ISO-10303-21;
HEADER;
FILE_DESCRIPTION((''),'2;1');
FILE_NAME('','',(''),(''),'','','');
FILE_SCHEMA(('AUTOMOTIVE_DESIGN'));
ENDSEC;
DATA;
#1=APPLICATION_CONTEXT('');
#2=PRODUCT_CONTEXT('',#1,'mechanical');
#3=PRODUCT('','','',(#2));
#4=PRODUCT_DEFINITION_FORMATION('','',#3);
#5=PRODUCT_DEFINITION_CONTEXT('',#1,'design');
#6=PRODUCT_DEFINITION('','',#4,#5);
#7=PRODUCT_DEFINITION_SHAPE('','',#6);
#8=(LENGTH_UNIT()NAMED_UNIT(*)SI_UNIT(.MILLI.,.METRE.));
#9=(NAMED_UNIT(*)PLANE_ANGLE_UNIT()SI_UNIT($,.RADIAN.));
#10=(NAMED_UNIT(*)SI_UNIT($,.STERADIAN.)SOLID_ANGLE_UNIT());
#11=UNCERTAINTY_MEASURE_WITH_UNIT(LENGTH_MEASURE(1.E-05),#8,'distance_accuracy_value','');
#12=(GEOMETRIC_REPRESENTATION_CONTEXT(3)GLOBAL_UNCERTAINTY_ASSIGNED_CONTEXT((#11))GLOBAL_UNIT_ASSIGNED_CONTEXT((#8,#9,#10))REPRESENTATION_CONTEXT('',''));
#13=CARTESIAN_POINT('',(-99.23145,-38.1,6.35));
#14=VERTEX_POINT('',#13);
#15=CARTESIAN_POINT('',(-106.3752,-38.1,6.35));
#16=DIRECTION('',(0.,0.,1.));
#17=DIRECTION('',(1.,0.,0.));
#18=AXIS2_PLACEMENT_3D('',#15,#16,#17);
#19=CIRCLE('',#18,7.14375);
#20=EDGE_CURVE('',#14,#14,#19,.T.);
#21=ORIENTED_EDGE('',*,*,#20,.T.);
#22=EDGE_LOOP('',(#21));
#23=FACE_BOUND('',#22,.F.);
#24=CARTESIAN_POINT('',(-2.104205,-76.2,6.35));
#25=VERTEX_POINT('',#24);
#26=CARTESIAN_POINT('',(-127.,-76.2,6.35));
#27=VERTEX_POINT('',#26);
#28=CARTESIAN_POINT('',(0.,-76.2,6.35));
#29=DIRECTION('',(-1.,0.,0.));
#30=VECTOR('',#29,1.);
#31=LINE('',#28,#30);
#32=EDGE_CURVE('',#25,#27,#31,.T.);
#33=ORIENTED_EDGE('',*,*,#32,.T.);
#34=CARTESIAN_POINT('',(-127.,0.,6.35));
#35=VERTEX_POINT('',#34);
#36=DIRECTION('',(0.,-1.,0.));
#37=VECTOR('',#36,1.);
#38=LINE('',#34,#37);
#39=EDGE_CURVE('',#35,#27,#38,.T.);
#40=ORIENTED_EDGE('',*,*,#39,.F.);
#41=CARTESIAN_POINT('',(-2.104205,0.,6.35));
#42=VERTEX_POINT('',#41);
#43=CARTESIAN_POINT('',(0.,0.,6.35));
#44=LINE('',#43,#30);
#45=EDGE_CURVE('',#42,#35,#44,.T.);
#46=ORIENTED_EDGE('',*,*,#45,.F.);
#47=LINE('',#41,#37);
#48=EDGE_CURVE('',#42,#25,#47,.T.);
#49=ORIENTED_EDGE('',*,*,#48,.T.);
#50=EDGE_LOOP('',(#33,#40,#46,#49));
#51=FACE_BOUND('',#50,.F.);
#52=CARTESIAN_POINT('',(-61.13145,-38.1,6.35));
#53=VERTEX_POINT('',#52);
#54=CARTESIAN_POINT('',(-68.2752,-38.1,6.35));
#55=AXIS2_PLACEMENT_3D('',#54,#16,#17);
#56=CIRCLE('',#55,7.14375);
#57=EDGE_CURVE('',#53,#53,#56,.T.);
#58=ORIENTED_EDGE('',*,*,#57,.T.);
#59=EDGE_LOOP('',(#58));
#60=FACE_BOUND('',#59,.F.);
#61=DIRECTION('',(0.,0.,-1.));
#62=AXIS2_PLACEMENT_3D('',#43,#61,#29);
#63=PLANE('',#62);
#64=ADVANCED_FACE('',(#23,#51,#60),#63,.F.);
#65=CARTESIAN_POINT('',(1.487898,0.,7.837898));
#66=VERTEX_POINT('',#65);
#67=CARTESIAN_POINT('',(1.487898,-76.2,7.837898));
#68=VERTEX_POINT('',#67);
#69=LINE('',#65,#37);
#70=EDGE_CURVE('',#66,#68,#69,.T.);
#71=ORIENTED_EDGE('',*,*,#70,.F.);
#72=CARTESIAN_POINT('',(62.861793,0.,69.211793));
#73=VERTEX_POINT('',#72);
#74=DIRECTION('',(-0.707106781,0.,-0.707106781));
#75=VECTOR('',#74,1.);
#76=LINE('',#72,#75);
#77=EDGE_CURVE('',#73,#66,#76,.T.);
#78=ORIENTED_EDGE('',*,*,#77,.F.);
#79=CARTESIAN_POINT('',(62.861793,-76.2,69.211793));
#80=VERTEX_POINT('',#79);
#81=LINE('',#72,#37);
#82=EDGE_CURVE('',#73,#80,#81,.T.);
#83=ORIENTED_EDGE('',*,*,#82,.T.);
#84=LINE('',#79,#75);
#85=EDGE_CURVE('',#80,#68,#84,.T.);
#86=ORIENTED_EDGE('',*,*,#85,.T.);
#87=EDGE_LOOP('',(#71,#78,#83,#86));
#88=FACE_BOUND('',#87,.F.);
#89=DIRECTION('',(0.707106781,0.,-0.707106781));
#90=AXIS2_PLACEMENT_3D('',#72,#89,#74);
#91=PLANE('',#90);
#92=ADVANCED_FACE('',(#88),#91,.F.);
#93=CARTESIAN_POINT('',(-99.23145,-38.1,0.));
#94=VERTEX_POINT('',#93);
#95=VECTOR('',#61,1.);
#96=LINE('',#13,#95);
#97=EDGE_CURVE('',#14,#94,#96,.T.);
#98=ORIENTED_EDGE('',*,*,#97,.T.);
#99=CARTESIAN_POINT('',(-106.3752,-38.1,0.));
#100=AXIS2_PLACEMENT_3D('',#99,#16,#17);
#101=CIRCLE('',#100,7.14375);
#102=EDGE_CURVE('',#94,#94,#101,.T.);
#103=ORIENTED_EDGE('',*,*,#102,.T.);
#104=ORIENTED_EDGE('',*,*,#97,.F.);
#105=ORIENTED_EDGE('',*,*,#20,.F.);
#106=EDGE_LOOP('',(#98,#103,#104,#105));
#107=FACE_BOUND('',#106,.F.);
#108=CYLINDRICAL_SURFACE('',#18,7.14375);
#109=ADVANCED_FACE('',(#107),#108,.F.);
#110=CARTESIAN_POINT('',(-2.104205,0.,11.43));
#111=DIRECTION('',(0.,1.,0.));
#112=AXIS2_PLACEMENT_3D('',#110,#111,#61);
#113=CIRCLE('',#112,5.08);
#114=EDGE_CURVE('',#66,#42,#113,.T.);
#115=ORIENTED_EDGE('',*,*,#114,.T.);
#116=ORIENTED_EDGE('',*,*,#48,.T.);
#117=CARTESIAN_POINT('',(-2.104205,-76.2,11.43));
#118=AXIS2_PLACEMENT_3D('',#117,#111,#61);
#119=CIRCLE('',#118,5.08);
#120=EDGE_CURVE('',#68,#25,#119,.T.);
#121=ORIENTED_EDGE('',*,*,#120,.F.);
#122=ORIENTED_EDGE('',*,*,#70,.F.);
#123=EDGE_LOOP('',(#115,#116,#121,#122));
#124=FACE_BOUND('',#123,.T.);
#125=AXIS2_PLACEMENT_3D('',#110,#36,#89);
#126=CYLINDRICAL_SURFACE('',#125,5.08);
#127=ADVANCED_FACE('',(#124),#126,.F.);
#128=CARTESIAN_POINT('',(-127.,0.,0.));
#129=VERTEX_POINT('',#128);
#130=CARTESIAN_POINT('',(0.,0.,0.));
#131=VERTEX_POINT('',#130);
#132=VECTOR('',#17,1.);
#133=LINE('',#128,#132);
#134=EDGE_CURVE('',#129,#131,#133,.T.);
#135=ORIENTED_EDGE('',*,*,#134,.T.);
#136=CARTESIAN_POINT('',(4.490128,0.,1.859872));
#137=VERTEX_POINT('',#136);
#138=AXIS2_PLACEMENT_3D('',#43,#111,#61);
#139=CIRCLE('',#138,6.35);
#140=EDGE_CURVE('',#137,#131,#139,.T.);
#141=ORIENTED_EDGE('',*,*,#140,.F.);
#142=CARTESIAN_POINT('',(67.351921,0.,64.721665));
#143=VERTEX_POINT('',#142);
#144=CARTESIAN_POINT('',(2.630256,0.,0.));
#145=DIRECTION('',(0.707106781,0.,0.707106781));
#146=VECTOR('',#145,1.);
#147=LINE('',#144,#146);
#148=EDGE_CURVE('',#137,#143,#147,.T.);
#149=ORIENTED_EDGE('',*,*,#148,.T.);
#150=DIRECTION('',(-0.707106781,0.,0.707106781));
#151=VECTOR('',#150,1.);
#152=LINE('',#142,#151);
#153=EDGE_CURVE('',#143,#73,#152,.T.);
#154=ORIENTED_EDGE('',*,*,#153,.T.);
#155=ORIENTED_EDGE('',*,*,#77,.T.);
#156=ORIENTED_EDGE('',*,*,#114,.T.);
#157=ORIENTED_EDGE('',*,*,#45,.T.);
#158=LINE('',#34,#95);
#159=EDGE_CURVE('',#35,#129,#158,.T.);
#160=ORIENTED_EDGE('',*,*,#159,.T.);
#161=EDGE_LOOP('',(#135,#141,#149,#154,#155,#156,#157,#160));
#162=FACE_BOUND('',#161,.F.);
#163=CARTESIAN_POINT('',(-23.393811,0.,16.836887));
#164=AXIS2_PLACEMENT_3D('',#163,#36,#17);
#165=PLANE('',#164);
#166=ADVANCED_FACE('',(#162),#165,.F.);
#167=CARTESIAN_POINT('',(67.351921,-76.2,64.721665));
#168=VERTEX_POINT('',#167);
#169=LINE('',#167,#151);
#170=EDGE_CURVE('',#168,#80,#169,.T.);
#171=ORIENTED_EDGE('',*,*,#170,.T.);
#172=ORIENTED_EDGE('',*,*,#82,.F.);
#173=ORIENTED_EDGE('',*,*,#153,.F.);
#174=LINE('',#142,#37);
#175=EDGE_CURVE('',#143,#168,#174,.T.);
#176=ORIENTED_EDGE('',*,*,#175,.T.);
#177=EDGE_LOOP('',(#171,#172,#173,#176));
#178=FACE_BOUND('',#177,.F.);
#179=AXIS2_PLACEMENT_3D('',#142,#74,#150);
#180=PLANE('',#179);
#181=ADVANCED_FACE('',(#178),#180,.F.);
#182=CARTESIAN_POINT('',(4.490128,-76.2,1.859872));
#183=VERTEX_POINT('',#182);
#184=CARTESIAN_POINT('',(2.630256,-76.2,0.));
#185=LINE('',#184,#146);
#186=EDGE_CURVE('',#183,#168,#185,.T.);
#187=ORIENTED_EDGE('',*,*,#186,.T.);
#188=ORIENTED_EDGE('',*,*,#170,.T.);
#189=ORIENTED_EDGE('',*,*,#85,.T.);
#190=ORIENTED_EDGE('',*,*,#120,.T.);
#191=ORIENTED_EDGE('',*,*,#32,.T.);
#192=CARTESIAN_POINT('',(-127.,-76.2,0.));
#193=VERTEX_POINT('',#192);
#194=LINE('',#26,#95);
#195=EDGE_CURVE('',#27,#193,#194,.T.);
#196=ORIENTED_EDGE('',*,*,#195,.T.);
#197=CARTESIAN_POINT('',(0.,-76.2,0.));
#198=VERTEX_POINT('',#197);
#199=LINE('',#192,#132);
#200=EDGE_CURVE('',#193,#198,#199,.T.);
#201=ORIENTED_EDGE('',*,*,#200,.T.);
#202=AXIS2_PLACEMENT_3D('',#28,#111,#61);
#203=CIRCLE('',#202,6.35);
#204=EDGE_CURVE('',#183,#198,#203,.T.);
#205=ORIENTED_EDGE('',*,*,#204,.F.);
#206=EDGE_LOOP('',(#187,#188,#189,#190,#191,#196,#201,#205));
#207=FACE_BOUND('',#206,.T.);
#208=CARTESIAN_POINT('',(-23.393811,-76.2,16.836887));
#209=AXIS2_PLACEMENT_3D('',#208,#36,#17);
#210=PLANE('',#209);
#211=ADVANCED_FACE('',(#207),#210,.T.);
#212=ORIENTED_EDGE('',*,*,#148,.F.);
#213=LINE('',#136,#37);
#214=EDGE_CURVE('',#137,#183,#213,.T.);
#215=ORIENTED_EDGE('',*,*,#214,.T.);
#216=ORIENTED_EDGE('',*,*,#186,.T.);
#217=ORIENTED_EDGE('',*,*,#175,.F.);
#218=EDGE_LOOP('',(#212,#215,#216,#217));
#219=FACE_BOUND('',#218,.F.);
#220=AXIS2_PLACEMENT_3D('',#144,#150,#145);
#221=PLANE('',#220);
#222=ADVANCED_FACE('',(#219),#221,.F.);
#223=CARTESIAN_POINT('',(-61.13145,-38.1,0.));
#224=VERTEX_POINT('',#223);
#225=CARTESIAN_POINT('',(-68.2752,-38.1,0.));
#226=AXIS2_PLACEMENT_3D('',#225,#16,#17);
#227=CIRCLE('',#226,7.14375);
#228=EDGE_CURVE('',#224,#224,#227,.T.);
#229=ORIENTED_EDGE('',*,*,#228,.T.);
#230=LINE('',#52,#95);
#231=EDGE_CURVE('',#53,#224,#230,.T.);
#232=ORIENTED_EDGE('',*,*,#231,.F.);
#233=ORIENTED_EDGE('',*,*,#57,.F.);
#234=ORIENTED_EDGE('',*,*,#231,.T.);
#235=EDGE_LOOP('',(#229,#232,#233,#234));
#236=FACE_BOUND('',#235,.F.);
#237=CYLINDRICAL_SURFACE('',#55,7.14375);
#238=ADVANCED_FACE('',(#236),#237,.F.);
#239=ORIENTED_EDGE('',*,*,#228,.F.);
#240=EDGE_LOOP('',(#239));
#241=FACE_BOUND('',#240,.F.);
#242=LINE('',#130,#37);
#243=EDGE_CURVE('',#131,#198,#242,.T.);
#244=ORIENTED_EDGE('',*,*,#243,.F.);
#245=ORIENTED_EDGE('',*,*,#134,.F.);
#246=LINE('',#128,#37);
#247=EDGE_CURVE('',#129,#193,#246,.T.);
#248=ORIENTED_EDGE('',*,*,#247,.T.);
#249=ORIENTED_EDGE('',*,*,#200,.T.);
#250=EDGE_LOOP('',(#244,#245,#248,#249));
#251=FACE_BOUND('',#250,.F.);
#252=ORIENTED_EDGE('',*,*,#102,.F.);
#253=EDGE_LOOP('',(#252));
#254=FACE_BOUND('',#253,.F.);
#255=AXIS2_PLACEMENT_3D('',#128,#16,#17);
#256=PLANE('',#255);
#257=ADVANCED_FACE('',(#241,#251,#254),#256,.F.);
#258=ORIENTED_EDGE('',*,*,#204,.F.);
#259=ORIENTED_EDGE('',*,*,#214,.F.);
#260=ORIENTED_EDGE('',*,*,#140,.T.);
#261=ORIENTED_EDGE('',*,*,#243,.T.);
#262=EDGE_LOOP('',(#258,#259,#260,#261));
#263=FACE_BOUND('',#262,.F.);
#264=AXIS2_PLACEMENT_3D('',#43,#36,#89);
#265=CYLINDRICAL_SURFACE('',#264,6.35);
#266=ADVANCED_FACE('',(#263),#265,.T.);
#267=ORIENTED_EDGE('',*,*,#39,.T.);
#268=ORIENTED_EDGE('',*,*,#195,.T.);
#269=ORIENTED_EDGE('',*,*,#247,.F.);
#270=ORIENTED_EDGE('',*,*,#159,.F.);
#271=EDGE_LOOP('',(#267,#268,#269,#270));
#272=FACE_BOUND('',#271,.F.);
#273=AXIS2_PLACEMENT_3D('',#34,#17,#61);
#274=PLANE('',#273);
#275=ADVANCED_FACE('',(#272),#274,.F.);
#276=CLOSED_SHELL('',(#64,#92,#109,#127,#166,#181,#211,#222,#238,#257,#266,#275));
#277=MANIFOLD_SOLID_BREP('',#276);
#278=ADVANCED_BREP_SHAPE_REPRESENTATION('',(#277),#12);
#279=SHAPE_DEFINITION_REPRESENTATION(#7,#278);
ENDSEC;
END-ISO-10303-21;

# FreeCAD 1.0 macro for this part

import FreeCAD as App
import Part
import Sketcher
from FreeCAD import Vector
Q = App.Units.Quantity


def edges_at(feature, points):
    """Names of the edges that pass closest to the given points."""
    edges = feature.Shape.Edges
    near = lambda p: min(range(len(edges)), key=lambda i: edges[i].distToShape(Part.Vertex(*p))[0])
    return sorted({f"Edge{near(p) + 1}" for p in points})


def add_polygon(sketch, points):
    """Adds a closed chain of lines whose ends are joined by coincident constraints."""
    first, n = sketch.GeometryCount, len(points)
    for a, b in zip(points, points[1:] + points[:1]):
        sketch.addGeometry(Part.LineSegment(App.Vector(*a, 0), App.Vector(*b, 0)), False)
    for i in range(n):
        sketch.addConstraint(Sketcher.Constraint("Coincident", first + i, 2, first + (i + 1) % n, 1))

doc = App.newDocument("Part")
body = doc.addObject("PartDesign::Body", "Body")

# Sketch on XZ plane
sketch1 = body.newObject("Sketcher::SketchObject", "Sketch")
sketch1.AttachmentSupport = (doc.getObject("XZ_Plane"), [""])
sketch1.MapMode = "FlatFace"
add_polygon(sketch1, [(-127, 0), (2.630256, 0), (67.351921, 64.721665), (62.861793, 69.211793), (0, 6.35), (-127, 6.35)])  # lines 0-5
sketch1.addConstraint([
    Sketcher.Constraint("Horizontal", 0),
    Sketcher.Constraint("Horizontal", 4),
    Sketcher.Constraint("Vertical", 5),
    Sketcher.Constraint("PointOnObject", 0, 2, -1),
    Sketcher.Constraint("PointOnObject", 3, 2, -2),
    Sketcher.Constraint("Perpendicular", 1, 2),
    Sketcher.Constraint("Perpendicular", 2, 3),
    Sketcher.Constraint("DistanceX", 4, 2, 4, 1, Q("5 in")),
    Sketcher.Constraint("Angle", 1, Q("45 deg")),
    Sketcher.Constraint("Distance", 3, Q("3.5 in")),
    Sketcher.Constraint("DistanceY", 5, 2, 5, 1, Q("0.25 in")),
    Sketcher.Constraint("Distance", 2, Q("0.25 in")),
])
pad1 = body.newObject("PartDesign::Pad", "Pad")
pad1.Profile = sketch1
pad1.Length = Q("3 in")
doc.recompute()

fillet = body.newObject("PartDesign::Fillet", "Fillet")
fillet.Base = (pad1, edges_at(pad1, [(0, -38.1, 6.35)]))
fillet.Radius = Q("0.2 in")
doc.recompute()

fillet2 = body.newObject("PartDesign::Fillet", "Fillet001")
fillet2.Base = (fillet, edges_at(fillet, [(2.63, -38.1, 0)]))
fillet2.Radius = Q("0.25 in")

# Sketch on XY plane
sketch2 = body.newObject("Sketcher::SketchObject", "Sketch001")
sketch2.AttachmentSupport = (doc.getObject("XY_Plane"), [""])
sketch2.MapMode = "FlatFace"
sketch2.AttachmentOffset = App.Placement(Vector(0, 0, 0.25 * 25.4), App.Rotation())
sketch2.addGeometry([
    Part.Circle(Vector(-106.3752, -38.1, 0), Vector(0, 0, 1), 7.14375),
    Part.Circle(Vector(-68.2752, -38.1, 0), Vector(0, 0, 1), 7.14375),
], False)
sketch2.addConstraint([
    Sketcher.Constraint("Equal", 0, 1),
    Sketcher.Constraint("Horizontal", 0, 3, 1, 3),
    Sketcher.Constraint("Diameter", 0, Q("0.5625 in")),
    Sketcher.Constraint("DistanceY", 0, 3, -1, 1, Q("1.5 in")),
    Sketcher.Constraint("DistanceX", 0, 3, 1, 3, Q("1.5 in")),
    Sketcher.Constraint("DistanceX", 0, 3, -1, 1, Q("4.188 in")),
])
pocket1 = body.newObject("PartDesign::Pocket", "Pocket")
pocket1.Profile = sketch2
pocket1.Length = Q("1 in")

doc.recompute()
